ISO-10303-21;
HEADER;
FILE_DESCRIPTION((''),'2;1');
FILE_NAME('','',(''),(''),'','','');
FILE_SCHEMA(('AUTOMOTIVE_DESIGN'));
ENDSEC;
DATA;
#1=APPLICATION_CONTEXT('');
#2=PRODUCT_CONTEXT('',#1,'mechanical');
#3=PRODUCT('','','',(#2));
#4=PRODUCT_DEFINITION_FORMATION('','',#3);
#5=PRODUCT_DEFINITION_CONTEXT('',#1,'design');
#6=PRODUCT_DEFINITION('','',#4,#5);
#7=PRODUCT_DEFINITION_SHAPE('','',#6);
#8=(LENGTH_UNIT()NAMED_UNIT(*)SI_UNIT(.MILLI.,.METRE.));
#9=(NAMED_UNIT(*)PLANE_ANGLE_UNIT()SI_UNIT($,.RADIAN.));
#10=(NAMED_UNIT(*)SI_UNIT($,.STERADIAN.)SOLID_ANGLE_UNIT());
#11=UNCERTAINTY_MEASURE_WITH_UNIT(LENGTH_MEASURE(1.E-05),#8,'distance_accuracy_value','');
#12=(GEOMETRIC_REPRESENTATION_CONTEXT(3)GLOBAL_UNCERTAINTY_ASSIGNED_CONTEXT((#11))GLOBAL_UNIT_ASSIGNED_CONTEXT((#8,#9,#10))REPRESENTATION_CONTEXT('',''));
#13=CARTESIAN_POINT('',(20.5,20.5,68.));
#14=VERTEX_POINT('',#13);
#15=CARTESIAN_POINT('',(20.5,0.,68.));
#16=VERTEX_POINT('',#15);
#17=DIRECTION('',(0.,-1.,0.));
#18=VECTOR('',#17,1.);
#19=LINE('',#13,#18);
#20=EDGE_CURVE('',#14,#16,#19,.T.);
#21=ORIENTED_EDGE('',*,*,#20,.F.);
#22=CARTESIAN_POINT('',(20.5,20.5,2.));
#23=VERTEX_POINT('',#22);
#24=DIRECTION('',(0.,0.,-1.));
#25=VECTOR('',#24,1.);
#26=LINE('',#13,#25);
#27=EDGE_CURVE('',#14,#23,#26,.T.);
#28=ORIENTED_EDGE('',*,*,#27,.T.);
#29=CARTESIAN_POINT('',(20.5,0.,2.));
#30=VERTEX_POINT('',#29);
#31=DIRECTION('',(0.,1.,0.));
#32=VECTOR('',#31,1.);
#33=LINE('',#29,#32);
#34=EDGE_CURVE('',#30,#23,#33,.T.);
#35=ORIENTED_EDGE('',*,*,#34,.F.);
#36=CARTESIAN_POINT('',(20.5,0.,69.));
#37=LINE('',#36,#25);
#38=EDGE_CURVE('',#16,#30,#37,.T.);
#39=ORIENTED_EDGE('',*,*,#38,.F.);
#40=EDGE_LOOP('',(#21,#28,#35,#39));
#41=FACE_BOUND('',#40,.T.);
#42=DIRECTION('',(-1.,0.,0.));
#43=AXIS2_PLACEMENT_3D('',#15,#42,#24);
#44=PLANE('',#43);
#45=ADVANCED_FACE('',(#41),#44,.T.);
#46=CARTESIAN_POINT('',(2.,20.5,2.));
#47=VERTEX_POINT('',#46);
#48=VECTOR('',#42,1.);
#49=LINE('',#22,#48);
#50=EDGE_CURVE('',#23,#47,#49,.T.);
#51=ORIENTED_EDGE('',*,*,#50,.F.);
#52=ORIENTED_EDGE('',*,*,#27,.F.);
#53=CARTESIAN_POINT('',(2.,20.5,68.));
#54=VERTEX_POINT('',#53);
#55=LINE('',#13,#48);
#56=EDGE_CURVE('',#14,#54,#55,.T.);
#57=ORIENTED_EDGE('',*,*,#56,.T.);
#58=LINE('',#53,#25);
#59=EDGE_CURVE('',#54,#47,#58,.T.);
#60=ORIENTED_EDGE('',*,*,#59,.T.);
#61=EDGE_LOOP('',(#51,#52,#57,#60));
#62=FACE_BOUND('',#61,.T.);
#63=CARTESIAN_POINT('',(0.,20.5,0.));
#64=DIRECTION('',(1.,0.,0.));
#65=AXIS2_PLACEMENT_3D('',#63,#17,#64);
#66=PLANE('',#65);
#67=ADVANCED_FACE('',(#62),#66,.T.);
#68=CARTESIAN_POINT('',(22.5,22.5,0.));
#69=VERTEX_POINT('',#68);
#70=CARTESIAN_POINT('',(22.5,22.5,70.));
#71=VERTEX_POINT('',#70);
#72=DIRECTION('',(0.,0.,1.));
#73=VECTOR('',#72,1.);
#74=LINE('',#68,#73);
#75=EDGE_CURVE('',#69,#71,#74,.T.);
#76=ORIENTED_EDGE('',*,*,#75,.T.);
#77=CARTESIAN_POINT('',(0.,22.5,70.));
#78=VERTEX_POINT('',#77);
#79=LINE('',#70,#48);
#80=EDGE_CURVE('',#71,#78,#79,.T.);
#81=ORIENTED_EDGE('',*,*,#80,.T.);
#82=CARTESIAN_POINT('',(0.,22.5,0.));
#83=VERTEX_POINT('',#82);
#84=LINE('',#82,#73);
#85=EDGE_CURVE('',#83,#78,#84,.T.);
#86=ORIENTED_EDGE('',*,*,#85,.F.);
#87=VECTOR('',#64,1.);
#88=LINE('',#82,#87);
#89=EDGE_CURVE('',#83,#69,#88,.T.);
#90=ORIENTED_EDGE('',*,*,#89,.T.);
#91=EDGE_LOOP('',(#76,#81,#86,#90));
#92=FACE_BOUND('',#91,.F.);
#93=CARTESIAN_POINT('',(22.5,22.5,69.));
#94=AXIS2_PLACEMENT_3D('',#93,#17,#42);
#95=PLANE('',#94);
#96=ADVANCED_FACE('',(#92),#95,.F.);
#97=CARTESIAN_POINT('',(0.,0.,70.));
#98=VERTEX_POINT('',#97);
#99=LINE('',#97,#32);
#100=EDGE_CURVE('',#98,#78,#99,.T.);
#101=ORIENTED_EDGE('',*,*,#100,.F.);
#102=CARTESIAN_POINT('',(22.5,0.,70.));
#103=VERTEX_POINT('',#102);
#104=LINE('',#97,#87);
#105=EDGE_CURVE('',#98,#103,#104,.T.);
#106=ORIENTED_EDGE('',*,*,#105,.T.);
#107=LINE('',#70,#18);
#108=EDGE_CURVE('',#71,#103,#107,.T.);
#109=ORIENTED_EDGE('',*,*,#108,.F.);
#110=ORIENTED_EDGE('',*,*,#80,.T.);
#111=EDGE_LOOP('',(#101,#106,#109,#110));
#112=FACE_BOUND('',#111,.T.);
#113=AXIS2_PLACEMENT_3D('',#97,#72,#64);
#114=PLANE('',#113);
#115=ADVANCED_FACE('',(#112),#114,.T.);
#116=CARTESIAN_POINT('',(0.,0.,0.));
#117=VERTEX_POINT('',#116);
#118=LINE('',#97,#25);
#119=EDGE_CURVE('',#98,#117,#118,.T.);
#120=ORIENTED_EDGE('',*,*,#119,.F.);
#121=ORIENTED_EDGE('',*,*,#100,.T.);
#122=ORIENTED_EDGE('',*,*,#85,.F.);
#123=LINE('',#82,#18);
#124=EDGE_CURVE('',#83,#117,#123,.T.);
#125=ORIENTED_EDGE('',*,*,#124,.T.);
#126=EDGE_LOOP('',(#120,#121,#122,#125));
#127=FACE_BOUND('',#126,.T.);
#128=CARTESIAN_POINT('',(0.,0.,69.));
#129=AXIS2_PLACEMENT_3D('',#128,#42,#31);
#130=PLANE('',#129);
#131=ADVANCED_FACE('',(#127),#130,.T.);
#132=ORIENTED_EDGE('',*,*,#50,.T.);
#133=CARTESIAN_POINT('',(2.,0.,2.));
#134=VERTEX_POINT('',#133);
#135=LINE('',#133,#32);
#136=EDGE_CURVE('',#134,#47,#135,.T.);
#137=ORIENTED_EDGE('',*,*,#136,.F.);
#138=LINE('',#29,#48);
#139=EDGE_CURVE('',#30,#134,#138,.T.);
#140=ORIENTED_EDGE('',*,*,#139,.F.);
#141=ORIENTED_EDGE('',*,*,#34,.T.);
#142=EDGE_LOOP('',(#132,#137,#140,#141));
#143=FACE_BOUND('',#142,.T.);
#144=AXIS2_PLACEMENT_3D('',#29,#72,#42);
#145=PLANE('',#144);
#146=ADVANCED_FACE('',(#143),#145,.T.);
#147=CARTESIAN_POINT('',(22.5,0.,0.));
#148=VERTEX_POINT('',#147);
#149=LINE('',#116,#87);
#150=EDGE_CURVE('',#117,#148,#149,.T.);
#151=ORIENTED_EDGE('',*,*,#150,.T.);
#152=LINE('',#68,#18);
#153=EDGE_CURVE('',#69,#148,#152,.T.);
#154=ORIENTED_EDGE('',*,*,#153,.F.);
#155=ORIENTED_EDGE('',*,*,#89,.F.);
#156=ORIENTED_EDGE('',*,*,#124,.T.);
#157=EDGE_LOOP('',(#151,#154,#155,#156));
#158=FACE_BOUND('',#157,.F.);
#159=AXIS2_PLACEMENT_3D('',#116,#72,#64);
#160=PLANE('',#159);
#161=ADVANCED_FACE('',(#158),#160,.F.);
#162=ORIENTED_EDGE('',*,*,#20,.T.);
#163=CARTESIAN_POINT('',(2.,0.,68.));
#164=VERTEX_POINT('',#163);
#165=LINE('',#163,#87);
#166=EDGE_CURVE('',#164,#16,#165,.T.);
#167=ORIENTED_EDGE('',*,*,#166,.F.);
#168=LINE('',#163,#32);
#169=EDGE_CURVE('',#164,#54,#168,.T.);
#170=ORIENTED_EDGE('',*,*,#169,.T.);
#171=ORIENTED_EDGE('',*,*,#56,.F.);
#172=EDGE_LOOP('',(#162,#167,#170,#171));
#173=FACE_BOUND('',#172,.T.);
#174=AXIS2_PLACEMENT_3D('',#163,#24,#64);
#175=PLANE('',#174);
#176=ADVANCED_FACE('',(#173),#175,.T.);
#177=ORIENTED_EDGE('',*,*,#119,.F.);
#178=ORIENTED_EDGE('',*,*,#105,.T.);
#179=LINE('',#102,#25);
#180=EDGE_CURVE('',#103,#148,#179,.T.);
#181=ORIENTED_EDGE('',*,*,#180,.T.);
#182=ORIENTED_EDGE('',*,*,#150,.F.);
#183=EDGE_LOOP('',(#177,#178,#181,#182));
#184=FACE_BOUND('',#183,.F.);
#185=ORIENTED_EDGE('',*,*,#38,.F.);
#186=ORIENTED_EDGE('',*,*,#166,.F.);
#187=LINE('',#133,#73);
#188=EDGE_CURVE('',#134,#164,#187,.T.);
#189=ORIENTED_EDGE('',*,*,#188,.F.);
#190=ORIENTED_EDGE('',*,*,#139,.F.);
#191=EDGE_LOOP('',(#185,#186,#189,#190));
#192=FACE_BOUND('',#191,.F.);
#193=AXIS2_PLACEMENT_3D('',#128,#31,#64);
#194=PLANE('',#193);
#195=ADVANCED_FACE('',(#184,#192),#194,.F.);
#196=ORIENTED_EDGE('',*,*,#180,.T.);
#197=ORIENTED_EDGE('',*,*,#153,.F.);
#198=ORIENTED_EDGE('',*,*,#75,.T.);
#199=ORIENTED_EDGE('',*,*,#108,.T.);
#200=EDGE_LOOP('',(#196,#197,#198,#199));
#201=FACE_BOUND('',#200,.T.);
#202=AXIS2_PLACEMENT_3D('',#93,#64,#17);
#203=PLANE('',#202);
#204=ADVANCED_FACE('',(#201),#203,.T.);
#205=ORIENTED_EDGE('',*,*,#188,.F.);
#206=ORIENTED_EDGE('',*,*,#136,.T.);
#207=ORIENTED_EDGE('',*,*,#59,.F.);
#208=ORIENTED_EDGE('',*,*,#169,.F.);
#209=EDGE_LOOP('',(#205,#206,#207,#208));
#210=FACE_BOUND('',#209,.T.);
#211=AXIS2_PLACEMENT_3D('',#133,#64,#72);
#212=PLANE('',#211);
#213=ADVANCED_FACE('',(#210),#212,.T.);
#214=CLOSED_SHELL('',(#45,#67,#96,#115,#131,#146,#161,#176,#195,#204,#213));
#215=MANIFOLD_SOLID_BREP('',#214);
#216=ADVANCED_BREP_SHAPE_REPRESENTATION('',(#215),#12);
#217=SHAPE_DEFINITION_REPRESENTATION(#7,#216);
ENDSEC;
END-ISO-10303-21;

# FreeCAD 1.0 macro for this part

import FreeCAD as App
import Part
import Sketcher
from FreeCAD import Vector
Q = App.Units.Quantity


def add_polygon(sketch, points):
    """Adds a closed chain of lines whose ends are joined by coincident constraints."""
    first, n = sketch.GeometryCount, len(points)
    for a, b in zip(points, points[1:] + points[:1]):
        sketch.addGeometry(Part.LineSegment(App.Vector(*a, 0), App.Vector(*b, 0)), False)
    for i in range(n):
        sketch.addConstraint(Sketcher.Constraint("Coincident", first + i, 2, first + (i + 1) % n, 1))

doc = App.newDocument("Part")
params = doc.addObject("Spreadsheet::Sheet", "Params")
for row, (alias, value) in enumerate([
    ("sketch1_width", "22.5 mm"),
    ("pad1_length", "69 mm"),
    ("sketch2_height", "66 mm"),
    ("sketch2_width", "18.5 mm"),
    ("pocket1_length", "18.5 mm"),
    ("sketch3_width", "22.5 mm"),
    ("pad2_length", "1 mm"),
    ("sketch4_height", "66 mm"),
    ("sketch4_width", "18.5 mm"),
    ("pocket2_length", "2 mm"),
], start=1):
    params.set(f"A{row}", alias)
    params.set(f"B{row}", "=" + value)
    params.setAlias(f"B{row}", alias)

body = doc.addObject("PartDesign::Body", "Body")

sketch1 = doc.addObject("Sketcher::SketchObject", "Sketch")
body.addObject(sketch1)
sketch1.AttachmentSupport = (doc.XY_Plane, [""])
sketch1.MapMode = "FlatFace"
add_polygon(sketch1, [(0, 0), (22, 0), (22, 22), (0, 22)])
sketch1.addConstraint(Sketcher.Constraint("Horizontal", 0))
sketch1.addConstraint(Sketcher.Constraint("Vertical", 1))
sketch1.addConstraint(Sketcher.Constraint("Horizontal", 2))
sketch1.addConstraint(Sketcher.Constraint("Vertical", 3))
sketch1.addConstraint(Sketcher.Constraint("Coincident", 3, 2, -1, 1))
sketch1.addConstraint(Sketcher.Constraint("Equal", 2, 1))
sketch1.addConstraint(Sketcher.Constraint("DistanceX", 0, 1, 0, 2, Q("22.5 mm")))
sketch1.setExpression("Constraints[10]", "Params.sketch1_width")
pad1 = doc.addObject("PartDesign::Pad", "Pad")
body.addObject(pad1)
pad1.Profile = sketch1
pad1.setExpression("Length", "Params.pad1_length")

sketch2 = doc.addObject("Sketcher::SketchObject", "Sketch001")
body.addObject(sketch2)
sketch2.AttachmentSupport = (doc.XZ_Plane, [""])
sketch2.MapMode = "FlatFace"
add_polygon(sketch2, [(20, 2), (20, 68), (2, 68), (2, 2)])
sketch2.addConstraint(Sketcher.Constraint("Vertical", 0))
sketch2.addConstraint(Sketcher.Constraint("Horizontal", 1))
sketch2.addConstraint(Sketcher.Constraint("Vertical", 2))
sketch2.addConstraint(Sketcher.Constraint("Horizontal", 3))
sketch2.addConstraint(Sketcher.Constraint("DistanceY", 0, 1, 0, 2, Q("66 mm")))
sketch2.addConstraint(Sketcher.Constraint("DistanceX", 1, 2, 1, 1, Q("18.5 mm")))
sketch2.addConstraint(Sketcher.Constraint("DistanceX", -1, 1, 1, 2, Q("2 mm")))
sketch2.addConstraint(Sketcher.Constraint("DistanceY", -1, 1, 2, 2, Q("2 mm")))
sketch2.setExpression("Constraints[8]", "Params.sketch2_height")
sketch2.setExpression("Constraints[9]", "Params.sketch2_width")
pocket1 = doc.addObject("PartDesign::Pocket", "Pocket")
body.addObject(pocket1)
pocket1.Profile = sketch2
pocket1.setExpression("Length", "Params.pocket1_length")

sketch3 = doc.addObject("Sketcher::SketchObject", "Sketch002")
body.addObject(sketch3)
sketch3.AttachmentSupport = (doc.XY_Plane, [""])
sketch3.MapMode = "FlatFace"
sketch3.AttachmentOffset = App.Placement(Vector(0, 0, 69), App.Rotation())
add_polygon(sketch3, [(22, 0), (22, 22), (0, 22), (0, 0)])
sketch3.addConstraint(Sketcher.Constraint("Vertical", 0))
sketch3.addConstraint(Sketcher.Constraint("Horizontal", 1))
sketch3.addConstraint(Sketcher.Constraint("Vertical", 2))
sketch3.addConstraint(Sketcher.Constraint("Horizontal", 3))
sketch3.addConstraint(Sketcher.Constraint("Coincident", 2, 2, -1, 1))
sketch3.addConstraint(Sketcher.Constraint("Equal", 3, 0))
sketch3.addConstraint(Sketcher.Constraint("DistanceX", 1, 2, 1, 1, Q("22.5 mm")))
sketch3.setExpression("Constraints[10]", "Params.sketch3_width")
pad2 = doc.addObject("PartDesign::Pad", "Pad001")
body.addObject(pad2)
pad2.Profile = sketch3
pad2.setExpression("Length", "Params.pad2_length")

sketch4 = doc.addObject("Sketcher::SketchObject", "Sketch003")
body.addObject(sketch4)
sketch4.AttachmentSupport = (doc.XZ_Plane, [""])
sketch4.MapMode = "FlatFace"
sketch4.AttachmentOffset = App.Placement(Vector(0, 0, -18.5), App.Rotation())
add_polygon(sketch4, [(2, 2), (20, 2), (20, 68), (2, 68)])
sketch4.addConstraint(Sketcher.Constraint("Horizontal", 0))
sketch4.addConstraint(Sketcher.Constraint("Vertical", 1))
sketch4.addConstraint(Sketcher.Constraint("Horizontal", 2))
sketch4.addConstraint(Sketcher.Constraint("Vertical", 3))
sketch4.addConstraint(Sketcher.Constraint("DistanceY", 1, 1, 1, 2, Q("66 mm")))
sketch4.addConstraint(Sketcher.Constraint("DistanceX", 0, 1, 0, 2, Q("18.5 mm")))
sketch4.addConstraint(Sketcher.Constraint("DistanceY", -1, 1, 0, 2, Q("2 mm")))
sketch4.addConstraint(Sketcher.Constraint("DistanceX", -1, 1, 2, 2, Q("2 mm")))
sketch4.setExpression("Constraints[8]", "Params.sketch4_height")
sketch4.setExpression("Constraints[9]", "Params.sketch4_width")
pocket2 = doc.addObject("PartDesign::Pocket", "Pocket001")
body.addObject(pocket2)
pocket2.Profile = sketch4
pocket2.setExpression("Length", "Params.pocket2_length")

doc.recompute()
